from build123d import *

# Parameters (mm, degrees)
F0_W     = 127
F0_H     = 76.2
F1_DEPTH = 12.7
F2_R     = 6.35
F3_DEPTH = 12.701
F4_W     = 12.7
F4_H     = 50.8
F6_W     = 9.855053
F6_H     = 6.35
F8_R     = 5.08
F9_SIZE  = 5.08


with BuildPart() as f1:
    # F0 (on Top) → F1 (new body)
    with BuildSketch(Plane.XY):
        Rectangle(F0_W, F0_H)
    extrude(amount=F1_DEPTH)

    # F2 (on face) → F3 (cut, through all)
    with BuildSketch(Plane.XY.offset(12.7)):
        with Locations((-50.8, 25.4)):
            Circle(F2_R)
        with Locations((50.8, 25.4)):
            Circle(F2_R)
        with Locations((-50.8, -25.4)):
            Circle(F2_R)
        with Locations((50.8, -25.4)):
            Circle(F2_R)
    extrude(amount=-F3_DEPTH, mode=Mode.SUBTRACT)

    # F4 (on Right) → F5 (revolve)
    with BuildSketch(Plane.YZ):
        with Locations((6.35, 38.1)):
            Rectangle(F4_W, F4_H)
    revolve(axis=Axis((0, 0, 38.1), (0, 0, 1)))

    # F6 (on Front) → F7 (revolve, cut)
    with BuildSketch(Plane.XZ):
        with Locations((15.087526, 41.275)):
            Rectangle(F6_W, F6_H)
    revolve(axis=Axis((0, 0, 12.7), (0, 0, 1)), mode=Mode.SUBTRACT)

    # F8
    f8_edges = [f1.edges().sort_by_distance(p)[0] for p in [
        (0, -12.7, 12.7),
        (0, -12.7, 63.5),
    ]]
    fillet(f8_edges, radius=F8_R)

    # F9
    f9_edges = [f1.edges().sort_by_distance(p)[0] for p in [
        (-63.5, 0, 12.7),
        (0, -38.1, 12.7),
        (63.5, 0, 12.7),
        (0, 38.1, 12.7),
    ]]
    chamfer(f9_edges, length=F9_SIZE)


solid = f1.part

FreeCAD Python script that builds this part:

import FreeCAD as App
import Part
import Sketcher

V = App.Vector
Q = App.Units.Quantity


def edges_at(feature, points):
    """Names of the edges that pass closest to the given points."""
    edges = feature.Shape.Edges
    near = lambda p: min(range(len(edges)), key=lambda i: edges[i].distToShape(Part.Vertex(*p))[0])
    return sorted({f"Edge{near(p) + 1}" for p in points})

doc = App.newDocument("Part")
body = doc.addObject("PartDesign::Body", "Body")

# Sketch on XY plane
sketch1 = body.newObject("Sketcher::SketchObject", "Sketch")
sketch1.AttachmentSupport = (doc.getObject("XY_Plane"), [""])
sketch1.MapMode = "FlatFace"
sketch1.addGeometry(Part.LineSegment(V(-64, 38, 0), V(-64, -38, 0)), False)
sketch1.addGeometry(Part.LineSegment(V(-64, -38, 0), V(64, -38, 0)), False)
sketch1.addGeometry(Part.LineSegment(V(64, -38, 0), V(64, 38, 0)), False)
sketch1.addGeometry(Part.LineSegment(V(64, 38, 0), V(-64, 38, 0)), False)
sketch1.addConstraint(Sketcher.Constraint("Coincident", 0, 2, 1, 1))
sketch1.addConstraint(Sketcher.Constraint("Coincident", 1, 2, 2, 1))
sketch1.addConstraint(Sketcher.Constraint("Coincident", 2, 2, 3, 1))
sketch1.addConstraint(Sketcher.Constraint("Coincident", 3, 2, 0, 1))
sketch1.addConstraint(Sketcher.Constraint("Vertical", 0))
sketch1.addConstraint(Sketcher.Constraint("Horizontal", 1))
sketch1.addConstraint(Sketcher.Constraint("Vertical", 2))
sketch1.addConstraint(Sketcher.Constraint("Horizontal", 3))
sketch1.addConstraint(Sketcher.Constraint("Symmetric", 0, 2, 2, 2, -1, 1))
sketch1.addConstraint(Sketcher.Constraint("DistanceX", 1, 1, 1, 2, Q("5 in")))
sketch1.addConstraint(Sketcher.Constraint("DistanceY", 0, 2, 0, 1, Q("3 in")))
pad1 = body.newObject("PartDesign::Pad", "Pad")
pad1.Profile = sketch1
pad1.Length = Q("0.5 in")

# Sketch on XY plane
sketch2 = body.newObject("Sketcher::SketchObject", "Sketch001")
sketch2.AttachmentSupport = (doc.getObject("XY_Plane"), [""])
sketch2.MapMode = "FlatFace"
sketch2.AttachmentOffset = App.Placement(V(0, 0, 0.5 * 25.4), App.Rotation())
sketch2.addGeometry(Part.Circle(V(-51, 25, 0), V(0, 0, 1), 6), False)
sketch2.addGeometry(Part.Circle(V(51, 25, 0), V(0, 0, 1), 6), False)
sketch2.addGeometry(Part.Circle(V(-51, -25, 0), V(0, 0, 1), 6), False)
sketch2.addGeometry(Part.Circle(V(51, -25, 0), V(0, 0, 1), 6), False)
sketch2.addConstraint(Sketcher.Constraint("Equal", 0, 1))
sketch2.addConstraint(Sketcher.Constraint("Equal", 1, 2))
sketch2.addConstraint(Sketcher.Constraint("Equal", 2, 3))
sketch2.addConstraint(Sketcher.Constraint("Symmetric", 1, 3, 2, 3, -1, 1))
sketch2.addConstraint(Sketcher.Constraint("Symmetric", 0, 3, 3, 3, -1, 1))
sketch2.addConstraint(Sketcher.Constraint("Symmetric", 0, 3, 1, 3, -2))
sketch2.addConstraint(Sketcher.Constraint("Diameter", 0, Q("0.5 in")))
sketch2.addConstraint(Sketcher.Constraint("DistanceX", 0, 3, -1, 1, Q("2 in")))
sketch2.addConstraint(Sketcher.Constraint("DistanceY", -1, 1, 0, 3, Q("1 in")))
pocket1 = body.newObject("PartDesign::Pocket", "Pocket")
pocket1.Profile = sketch2
pocket1.Type = "ThroughAll"

# Sketch on YZ plane
sketch3 = body.newObject("Sketcher::SketchObject", "Sketch002")
sketch3.AttachmentSupport = (doc.getObject("YZ_Plane"), [""])
sketch3.MapMode = "FlatFace"
sketch3.addGeometry(Part.LineSegment(V(0, 64, 0), V(0, 13, 0)), False)
sketch3.addGeometry(Part.LineSegment(V(0, 13, 0), V(13, 13, 0)), False)
sketch3.addGeometry(Part.LineSegment(V(13, 13, 0), V(13, 64, 0)), False)
sketch3.addGeometry(Part.LineSegment(V(13, 64, 0), V(0, 64, 0)), False)
sketch3.addConstraint(Sketcher.Constraint("Coincident", 0, 2, 1, 1))
sketch3.addConstraint(Sketcher.Constraint("Coincident", 1, 2, 2, 1))
sketch3.addConstraint(Sketcher.Constraint("Coincident", 2, 2, 3, 1))
sketch3.addConstraint(Sketcher.Constraint("Coincident", 3, 2, 0, 1))
sketch3.addConstraint(Sketcher.Constraint("Vertical", 0))
sketch3.addConstraint(Sketcher.Constraint("Horizontal", 1))
sketch3.addConstraint(Sketcher.Constraint("Vertical", 2))
sketch3.addConstraint(Sketcher.Constraint("Horizontal", 3))
sketch3.addConstraint(Sketcher.Constraint("PointOnObject", 0, 2, -2))
sketch3.addConstraint(Sketcher.Constraint("DistanceY", 0, 2, 0, 1, Q("2 in")))
sketch3.addConstraint(Sketcher.Constraint("DistanceX", 1, 1, 1, 2, Q("0.5 in")))
sketch3.addConstraint(Sketcher.Constraint("DistanceY", -1, 1, 0, 2, Q("0.5 in")))
revolution = body.newObject("PartDesign::Revolution", "Revolution")
revolution.Profile = sketch3
revolution.ReferenceAxis = (sketch3, ["V_Axis"])
revolution.Angle = 360

# Sketch on XZ plane
sketch4 = body.newObject("Sketcher::SketchObject", "Sketch003")
sketch4.AttachmentSupport = (doc.getObject("XZ_Plane"), [""])
sketch4.MapMode = "FlatFace"
sketch4.addGeometry(Part.LineSegment(V(10, 44, 0), V(10, 38, 0)), False)
sketch4.addGeometry(Part.LineSegment(V(10, 38, 0), V(20, 38, 0)), False)
sketch4.addGeometry(Part.LineSegment(V(20, 38, 0), V(20, 44, 0)), False)
sketch4.addGeometry(Part.LineSegment(V(20, 44, 0), V(10, 44, 0)), False)
sketch4.addConstraint(Sketcher.Constraint("Coincident", 0, 2, 1, 1))
sketch4.addConstraint(Sketcher.Constraint("Coincident", 1, 2, 2, 1))
sketch4.addConstraint(Sketcher.Constraint("Coincident", 2, 2, 3, 1))
sketch4.addConstraint(Sketcher.Constraint("Coincident", 3, 2, 0, 1))
sketch4.addConstraint(Sketcher.Constraint("Vertical", 0))
sketch4.addConstraint(Sketcher.Constraint("Horizontal", 1))
sketch4.addConstraint(Sketcher.Constraint("Vertical", 2))
sketch4.addConstraint(Sketcher.Constraint("Horizontal", 3))
sketch4.addConstraint(Sketcher.Constraint("DistanceY", 0, 2, 0, 1, Q("0.25 in")))
sketch4.addConstraint(Sketcher.Constraint("DistanceX", -1, 1, 0, 2, Q("0.4 in")))
sketch4.addConstraint(Sketcher.Constraint("DistanceY", -1, 1, 0, 2, Q("1.5 in")))
sketch4.addConstraint(Sketcher.Constraint("DistanceX", 1, 1, 1, 2, Q("9.855053 mm")))
groove = body.newObject("PartDesign::Groove", "Groove")
groove.Profile = sketch4
groove.ReferenceAxis = (sketch4, ["V_Axis"])
groove.Angle = 360
doc.recompute()

fillet = body.newObject("PartDesign::Fillet", "Fillet")
fillet.Base = (groove, edges_at(groove, [(0, -12.7, 12.7), (0, -12.7, 63.5)]))
fillet.Radius = Q("0.2 in")
doc.recompute()

chamfer = body.newObject("PartDesign::Chamfer", "Chamfer")
chamfer.Base = (fillet, edges_at(fillet, [
    (-63.5, 0, 12.7),
    (0, -38.1, 12.7),
    (63.5, 0, 12.7),
    (0, 38.1, 12.7),
]))
chamfer.Size = Q("0.2 in")

doc.recompute()
